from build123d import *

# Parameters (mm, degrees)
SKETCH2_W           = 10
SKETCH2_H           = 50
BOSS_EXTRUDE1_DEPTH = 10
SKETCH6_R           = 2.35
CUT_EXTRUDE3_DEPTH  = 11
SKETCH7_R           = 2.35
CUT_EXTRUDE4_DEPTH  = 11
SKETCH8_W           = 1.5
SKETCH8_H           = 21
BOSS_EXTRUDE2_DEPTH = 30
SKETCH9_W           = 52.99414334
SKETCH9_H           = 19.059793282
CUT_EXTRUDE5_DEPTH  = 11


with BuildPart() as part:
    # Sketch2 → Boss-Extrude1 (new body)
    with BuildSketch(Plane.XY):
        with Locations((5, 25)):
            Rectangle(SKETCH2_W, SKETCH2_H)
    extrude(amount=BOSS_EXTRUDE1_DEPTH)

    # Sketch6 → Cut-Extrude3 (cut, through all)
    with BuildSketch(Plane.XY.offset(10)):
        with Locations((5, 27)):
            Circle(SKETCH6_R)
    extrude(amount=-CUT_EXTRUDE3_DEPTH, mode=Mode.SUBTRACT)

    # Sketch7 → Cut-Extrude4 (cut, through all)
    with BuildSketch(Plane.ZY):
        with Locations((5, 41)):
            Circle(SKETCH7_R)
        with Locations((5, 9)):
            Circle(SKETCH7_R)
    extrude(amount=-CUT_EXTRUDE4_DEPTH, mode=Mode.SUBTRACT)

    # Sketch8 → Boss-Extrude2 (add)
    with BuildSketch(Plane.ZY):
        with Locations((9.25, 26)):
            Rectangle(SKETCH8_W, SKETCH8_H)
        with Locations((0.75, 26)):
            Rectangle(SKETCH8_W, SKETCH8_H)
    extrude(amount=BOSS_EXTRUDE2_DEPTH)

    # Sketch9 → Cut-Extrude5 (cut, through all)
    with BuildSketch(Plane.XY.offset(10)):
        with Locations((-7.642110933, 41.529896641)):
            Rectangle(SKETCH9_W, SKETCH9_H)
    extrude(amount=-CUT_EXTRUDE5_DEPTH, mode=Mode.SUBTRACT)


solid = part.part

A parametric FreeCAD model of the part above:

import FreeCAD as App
import Part
import Sketcher

V = App.Vector
Q = App.Units.Quantity

doc = App.newDocument("Part")
body = doc.addObject("PartDesign::Body", "Body")

# Sketch on XY plane
sketch1 = body.newObject("Sketcher::SketchObject", "Sketch")
sketch1.AttachmentSupport = (doc.getObject("XY_Plane"), [""])
sketch1.MapMode = "FlatFace"
sketch1.addGeometry(Part.LineSegment(V(0, 50, 0), V(0, 0, 0)), False)
sketch1.addGeometry(Part.LineSegment(V(0, 0, 0), V(10, 0, 0)), False)
sketch1.addGeometry(Part.LineSegment(V(10, 0, 0), V(10, 50, 0)), False)
sketch1.addGeometry(Part.LineSegment(V(10, 50, 0), V(0, 50, 0)), False)
sketch1.addConstraint(Sketcher.Constraint("Coincident", 0, 2, 1, 1))
sketch1.addConstraint(Sketcher.Constraint("Coincident", 1, 2, 2, 1))
sketch1.addConstraint(Sketcher.Constraint("Coincident", 2, 2, 3, 1))
sketch1.addConstraint(Sketcher.Constraint("Coincident", 3, 2, 0, 1))
sketch1.addConstraint(Sketcher.Constraint("Vertical", 0))
sketch1.addConstraint(Sketcher.Constraint("Horizontal", 1))
sketch1.addConstraint(Sketcher.Constraint("Vertical", 2))
sketch1.addConstraint(Sketcher.Constraint("Horizontal", 3))
sketch1.addConstraint(Sketcher.Constraint("Coincident", 0, 2, -1, 1))
sketch1.addConstraint(Sketcher.Constraint("DistanceX", 1, 1, 1, 2, Q("10 mm")))
sketch1.addConstraint(Sketcher.Constraint("DistanceY", 0, 2, 0, 1, Q("50 mm")))
pad1 = body.newObject("PartDesign::Pad", "Pad")
pad1.Profile = sketch1
pad1.Length = 10

# Sketch on XY plane
sketch2 = body.newObject("Sketcher::SketchObject", "Sketch001")
sketch2.AttachmentSupport = (doc.getObject("XY_Plane"), [""])
sketch2.MapMode = "FlatFace"
sketch2.AttachmentOffset = App.Placement(V(0, 0, 10), App.Rotation())
sketch2.addGeometry(Part.Circle(V(5, 27, 0), V(0, 0, 1), 2.4), False)
sketch2.addConstraint(Sketcher.Constraint("Diameter", 0, Q("4.7 mm")))
sketch2.addConstraint(Sketcher.Constraint("DistanceX", -1, 1, 0, 3, Q("5 mm")))
sketch2.addConstraint(Sketcher.Constraint("DistanceY", -1, 1, 0, 3, Q("27 mm")))
pocket1 = body.newObject("PartDesign::Pocket", "Pocket")
pocket1.Profile = sketch2
pocket1.Type = "ThroughAll"

# Sketch on YZ plane
sketch3 = body.newObject("Sketcher::SketchObject", "Sketch002")
sketch3.AttachmentSupport = (doc.getObject("YZ_Plane"), [""])
sketch3.MapMode = "FlatFace"
sketch3.addGeometry(Part.Circle(V(41, 5, 0), V(0, 0, 1), 2.4), False)
sketch3.addGeometry(Part.Circle(V(9, 5, 0), V(0, 0, 1), 2.4), False)
sketch3.addConstraint(Sketcher.Constraint("Equal", 0, 1))
sketch3.addConstraint(Sketcher.Constraint("Horizontal", 0, 3, 1, 3))
sketch3.addConstraint(Sketcher.Constraint("Diameter", 0, Q("4.7 mm")))
sketch3.addConstraint(Sketcher.Constraint("DistanceX", -1, 1, 0, 3, Q("41 mm")))
sketch3.addConstraint(Sketcher.Constraint("DistanceY", -1, 1, 0, 3, Q("5 mm")))
sketch3.addConstraint(Sketcher.Constraint("DistanceX", -1, 1, 1, 3, Q("9 mm")))
pocket2 = body.newObject("PartDesign::Pocket", "Pocket001")
pocket2.Profile = sketch3
pocket2.Type = "ThroughAll"
pocket2.Reversed = True

# Sketch on YZ plane
sketch4 = body.newObject("Sketcher::SketchObject", "Sketch003")
sketch4.AttachmentSupport = (doc.getObject("YZ_Plane"), [""])
sketch4.MapMode = "FlatFace"
sketch4.addGeometry(Part.LineSegment(V(36.5, 8.5, 0), V(15.5, 8.5, 0)), False)
sketch4.addGeometry(Part.LineSegment(V(15.5, 8.5, 0), V(15.5, 10, 0)), False)
sketch4.addGeometry(Part.LineSegment(V(15.5, 10, 0), V(36.5, 10, 0)), False)
sketch4.addGeometry(Part.LineSegment(V(36.5, 10, 0), V(36.5, 8.5, 0)), False)
sketch4.addGeometry(Part.LineSegment(V(36.5, 0, 0), V(15.5, 0, 0)), False)
sketch4.addGeometry(Part.LineSegment(V(15.5, 0, 0), V(15.5, 1.5, 0)), False)
sketch4.addGeometry(Part.LineSegment(V(15.5, 1.5, 0), V(36.5, 1.5, 0)), False)
sketch4.addGeometry(Part.LineSegment(V(36.5, 1.5, 0), V(36.5, 0, 0)), False)
sketch4.addConstraint(Sketcher.Constraint("Coincident", 0, 2, 1, 1))
sketch4.addConstraint(Sketcher.Constraint("Coincident", 1, 2, 2, 1))
sketch4.addConstraint(Sketcher.Constraint("Coincident", 2, 2, 3, 1))
sketch4.addConstraint(Sketcher.Constraint("Coincident", 3, 2, 0, 1))
sketch4.addConstraint(Sketcher.Constraint("Coincident", 4, 2, 5, 1))
sketch4.addConstraint(Sketcher.Constraint("Coincident", 5, 2, 6, 1))
sketch4.addConstraint(Sketcher.Constraint("Coincident", 6, 2, 7, 1))
sketch4.addConstraint(Sketcher.Constraint("Coincident", 7, 2, 4, 1))
sketch4.addConstraint(Sketcher.Constraint("Horizontal", 0))
sketch4.addConstraint(Sketcher.Constraint("Vertical", 1))
sketch4.addConstraint(Sketcher.Constraint("Horizontal", 2))
sketch4.addConstraint(Sketcher.Constraint("Vertical", 3))
sketch4.addConstraint(Sketcher.Constraint("Horizontal", 4))
sketch4.addConstraint(Sketcher.Constraint("Vertical", 5))
sketch4.addConstraint(Sketcher.Constraint("Horizontal", 6))
sketch4.addConstraint(Sketcher.Constraint("Vertical", 7))
sketch4.addConstraint(Sketcher.Constraint("PointOnObject", 4, 2, -1))
sketch4.addConstraint(Sketcher.Constraint("Vertical", 1, 2, 4, 2))
sketch4.addConstraint(Sketcher.Constraint("Vertical", 3, 2, 6, 2))
sketch4.addConstraint(Sketcher.Constraint("Equal", 3, 5))
sketch4.addConstraint(Sketcher.Constraint("DistanceX", 0, 2, 0, 1, Q("21 mm")))
sketch4.addConstraint(Sketcher.Constraint("DistanceY", 1, 1, 1, 2, Q("1.5 mm")))
sketch4.addConstraint(Sketcher.Constraint("DistanceY", -1, 1, 1, 2, Q("10 mm")))
sketch4.addConstraint(Sketcher.Constraint("DistanceX", -1, 1, 0, 2, Q("15.5 mm")))
pad2 = body.newObject("PartDesign::Pad", "Pad001")
pad2.Profile = sketch4
pad2.Length = 30
pad2.Reversed = True

# Sketch on XY plane
sketch5 = body.newObject("Sketcher::SketchObject", "Sketch004")
sketch5.AttachmentSupport = (doc.getObject("XY_Plane"), [""])
sketch5.MapMode = "FlatFace"
sketch5.AttachmentOffset = App.Placement(V(0, 0, 10), App.Rotation())
sketch5.addGeometry(Part.LineSegment(V(-34, 51, 0), V(-34, 32, 0)), False)
sketch5.addGeometry(Part.LineSegment(V(-34, 32, 0), V(19, 32, 0)), False)
sketch5.addGeometry(Part.LineSegment(V(19, 32, 0), V(19, 51, 0)), False)
sketch5.addGeometry(Part.LineSegment(V(19, 51, 0), V(-34, 51, 0)), False)
sketch5.addConstraint(Sketcher.Constraint("Coincident", 0, 2, 1, 1))
sketch5.addConstraint(Sketcher.Constraint("Coincident", 1, 2, 2, 1))
sketch5.addConstraint(Sketcher.Constraint("Coincident", 2, 2, 3, 1))
sketch5.addConstraint(Sketcher.Constraint("Coincident", 3, 2, 0, 1))
sketch5.addConstraint(Sketcher.Constraint("Vertical", 0))
sketch5.addConstraint(Sketcher.Constraint("Horizontal", 1))
sketch5.addConstraint(Sketcher.Constraint("Vertical", 2))
sketch5.addConstraint(Sketcher.Constraint("Horizontal", 3))
sketch5.addConstraint(Sketcher.Constraint("DistanceY", -1, 1, 0, 2, Q("32 mm")))
sketch5.addConstraint(Sketcher.Constraint("DistanceX", 1, 1, 1, 2, Q("52.994143 mm")))
sketch5.addConstraint(Sketcher.Constraint("DistanceY", 0, 2, 0, 1, Q("19.059793 mm")))
sketch5.addConstraint(Sketcher.Constraint("DistanceX", -1, 1, 1, 2, Q("18.854961 mm")))
pocket3 = body.newObject("PartDesign::Pocket", "Pocket002")
pocket3.Profile = sketch5
pocket3.Type = "ThroughAll"

doc.recompute()
